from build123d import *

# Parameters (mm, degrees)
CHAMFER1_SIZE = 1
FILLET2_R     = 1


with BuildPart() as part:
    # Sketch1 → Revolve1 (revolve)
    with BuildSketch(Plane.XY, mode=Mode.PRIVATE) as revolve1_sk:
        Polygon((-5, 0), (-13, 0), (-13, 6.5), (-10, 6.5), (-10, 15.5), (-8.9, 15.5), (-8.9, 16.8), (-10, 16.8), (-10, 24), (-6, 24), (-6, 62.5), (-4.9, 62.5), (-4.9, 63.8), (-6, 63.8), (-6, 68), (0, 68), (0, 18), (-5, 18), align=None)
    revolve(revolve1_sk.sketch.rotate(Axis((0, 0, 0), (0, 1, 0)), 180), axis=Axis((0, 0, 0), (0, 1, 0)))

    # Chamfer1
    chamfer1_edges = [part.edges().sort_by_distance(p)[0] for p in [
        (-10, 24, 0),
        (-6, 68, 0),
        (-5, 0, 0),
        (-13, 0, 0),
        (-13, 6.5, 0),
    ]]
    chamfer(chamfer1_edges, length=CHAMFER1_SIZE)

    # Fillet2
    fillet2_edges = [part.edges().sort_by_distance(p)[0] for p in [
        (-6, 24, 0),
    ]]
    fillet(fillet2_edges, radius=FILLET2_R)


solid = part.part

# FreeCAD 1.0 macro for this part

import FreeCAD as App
import Part
import Sketcher

V = App.Vector
Q = App.Units.Quantity


def edges_at(feature, points):
    """Names of the edges that pass closest to the given points."""
    edges = feature.Shape.Edges
    near = lambda p: min(range(len(edges)), key=lambda i: edges[i].distToShape(Part.Vertex(*p))[0])
    return sorted({f"Edge{near(p) + 1}" for p in points})


def add_polygon(sketch, points):
    """Adds a closed chain of lines whose ends are joined by coincident constraints."""
    first, n = sketch.GeometryCount, len(points)
    for a, b in zip(points, points[1:] + points[:1]):
        sketch.addGeometry(Part.LineSegment(App.Vector(*a, 0), App.Vector(*b, 0)), False)
    for i in range(n):
        sketch.addConstraint(Sketcher.Constraint("Coincident", first + i, 2, first + (i + 1) % n, 1))

doc = App.newDocument("Part")
params = doc.addObject("Spreadsheet::Sheet", "Params")
for row, (alias, value) in enumerate([
    ("sketch1_width", "8 mm"),
    ("sketch1_width2", "5 mm"),
    ("sketch1_width3", "6 mm"),
    ("sketch1_width4", "4 mm"),
    ("sketch1_height", "18 mm"),
    ("revolution_angle", "360 deg"),
    ("chamfer_size", "1 mm"),
    ("fillet_radius", "1 mm"),
], start=1):
    params.set(f"A{row}", alias)
    params.set(f"B{row}", "=" + value)
    params.setAlias(f"B{row}", alias)

body = doc.addObject("PartDesign::Body", "Body")

sketch1 = body.newObject("Sketcher::SketchObject", "Sketch")
sketch1.AttachmentSupport = (doc.getObject("XY_Plane"), [""])
sketch1.MapMode = "FlatFace"
add_polygon(sketch1, [(-13, 0), (-5, 0), (-5, 18), (0, 18), (0, 68), (-6, 68), (-6, 63.8), (-4.9, 63.8), (-4.9, 62.5), (-6, 62.5), (-6, 24), (-10, 24), (-10, 16.8), (-8.9, 16.8), (-8.9, 15.5), (-10, 15.5), (-10, 6.5), (-13, 6.5)])
sketch1.addConstraint([
    Sketcher.Constraint("Horizontal", 0),
    Sketcher.Constraint("Vertical", 1),
    Sketcher.Constraint("Horizontal", 2),
    Sketcher.Constraint("Vertical", 3),
    Sketcher.Constraint("Horizontal", 4),
    Sketcher.Constraint("Vertical", 5),
    Sketcher.Constraint("Horizontal", 6),
    Sketcher.Constraint("Vertical", 7),
    Sketcher.Constraint("Horizontal", 8),
    Sketcher.Constraint("Vertical", 9),
    Sketcher.Constraint("Horizontal", 10),
    Sketcher.Constraint("Vertical", 11),
    Sketcher.Constraint("Horizontal", 12),
    Sketcher.Constraint("Vertical", 13),
    Sketcher.Constraint("Horizontal", 14),
    Sketcher.Constraint("Vertical", 15),
    Sketcher.Constraint("Horizontal", 16),
    Sketcher.Constraint("Vertical", 17),
    Sketcher.Constraint("PointOnObject", 0, 2, -1),
    Sketcher.Constraint("PointOnObject", 2, 2, -2),
    Sketcher.Constraint("Vertical", 5, 2, 8, 2),
    Sketcher.Constraint("Vertical", 11, 2, 14, 2),
    Sketcher.Constraint("Equal", 8, 12),
    Sketcher.Constraint("Equal", 7, 13),
    Sketcher.Constraint("DistanceX", 0, 1, 0, 2, Q("8 mm")),
    Sketcher.Constraint("DistanceX", 2, 1, 2, 2, Q("5 mm")),
    Sketcher.Constraint("DistanceX", 4, 2, 4, 1, Q("6 mm")),
    Sketcher.Constraint("DistanceX", 10, 2, 10, 1, Q("4 mm")),
    Sketcher.Constraint("DistanceY", 1, 1, 1, 2, Q("18 mm")),
    Sketcher.Constraint("DistanceY", 3, 1, 3, 2, Q("50 mm")),
    Sketcher.Constraint("DistanceY", 15, 2, 15, 1, Q("9 mm")),
    Sketcher.Constraint("DistanceX", 6, 1, 6, 2, Q("1.1 mm")),
    Sketcher.Constraint("DistanceY", 5, 2, 5, 1, Q("4.2 mm")),
    Sketcher.Constraint("DistanceY", 7, 2, 7, 1, Q("1.3 mm")),
    Sketcher.Constraint("DistanceY", 9, 2, 9, 1, Q("38.5 mm")),
    Sketcher.Constraint("DistanceY", 11, 2, 11, 1, Q("7.2 mm")),
])
sketch1.setExpression("Constraints[42]", "Params.sketch1_width")
sketch1.setExpression("Constraints[43]", "Params.sketch1_width2")
sketch1.setExpression("Constraints[44]", "Params.sketch1_width3")
sketch1.setExpression("Constraints[45]", "Params.sketch1_width4")
sketch1.setExpression("Constraints[46]", "Params.sketch1_height")
revolution = body.newObject("PartDesign::Revolution", "Revolution")
revolution.Profile = sketch1
revolution.ReferenceAxis = (sketch1, ["V_Axis"])
revolution.setExpression("Angle", "Params.revolution_angle")
doc.recompute()

chamfer = body.newObject("PartDesign::Chamfer", "Chamfer")
chamfer.Base = (revolution, edges_at(revolution, [
    (-10, 24, 0),
    (-6, 68, 0),
    (-5, 0, 0),
    (-13, 0, 0),
    (-13, 6.5, 0),
]))
chamfer.setExpression("Size", "Params.chamfer_size")
doc.recompute()

fillet = body.newObject("PartDesign::Fillet", "Fillet")
fillet.Base = (chamfer, edges_at(chamfer, [(-6, 24, 0)]))
fillet.setExpression("Radius", "Params.fillet_radius")

doc.recompute()
